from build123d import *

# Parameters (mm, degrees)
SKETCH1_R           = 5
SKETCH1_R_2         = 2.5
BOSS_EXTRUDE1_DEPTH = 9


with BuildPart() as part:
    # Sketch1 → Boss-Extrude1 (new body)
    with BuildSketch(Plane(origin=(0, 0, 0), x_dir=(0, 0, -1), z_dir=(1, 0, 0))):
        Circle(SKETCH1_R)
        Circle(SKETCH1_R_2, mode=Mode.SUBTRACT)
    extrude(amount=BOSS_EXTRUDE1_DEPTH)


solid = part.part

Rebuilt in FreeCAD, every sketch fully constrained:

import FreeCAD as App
import Part
import Sketcher

doc = App.newDocument("Part")
body = doc.addObject("PartDesign::Body", "Body")

sketch1 = body.newObject("Sketcher::SketchObject", "Sketch")
sketch1.AttachmentSupport = (doc.getObject("YZ_Plane"), [""])
sketch1.MapMode = "FlatFace"
sketch1.addGeometry([
    Part.Circle(App.Vector(0, 0, 0), App.Vector(0, 0, 1), 5),
    Part.Circle(App.Vector(0, 0, 0), App.Vector(0, 0, 1), 2.5),
], False)
sketch1.addConstraint([
    Sketcher.Constraint("Coincident", 0, 3, -1, 1),
    Sketcher.Constraint("Coincident", 1, 3, -1, 1),
    Sketcher.Constraint("Diameter", 0, 10.0),
    Sketcher.Constraint("Diameter", 1, 5.0),
])
pad1 = body.newObject("PartDesign::Pad", "Pad")
pad1.Profile = sketch1
pad1.Length = 9

doc.recompute()
